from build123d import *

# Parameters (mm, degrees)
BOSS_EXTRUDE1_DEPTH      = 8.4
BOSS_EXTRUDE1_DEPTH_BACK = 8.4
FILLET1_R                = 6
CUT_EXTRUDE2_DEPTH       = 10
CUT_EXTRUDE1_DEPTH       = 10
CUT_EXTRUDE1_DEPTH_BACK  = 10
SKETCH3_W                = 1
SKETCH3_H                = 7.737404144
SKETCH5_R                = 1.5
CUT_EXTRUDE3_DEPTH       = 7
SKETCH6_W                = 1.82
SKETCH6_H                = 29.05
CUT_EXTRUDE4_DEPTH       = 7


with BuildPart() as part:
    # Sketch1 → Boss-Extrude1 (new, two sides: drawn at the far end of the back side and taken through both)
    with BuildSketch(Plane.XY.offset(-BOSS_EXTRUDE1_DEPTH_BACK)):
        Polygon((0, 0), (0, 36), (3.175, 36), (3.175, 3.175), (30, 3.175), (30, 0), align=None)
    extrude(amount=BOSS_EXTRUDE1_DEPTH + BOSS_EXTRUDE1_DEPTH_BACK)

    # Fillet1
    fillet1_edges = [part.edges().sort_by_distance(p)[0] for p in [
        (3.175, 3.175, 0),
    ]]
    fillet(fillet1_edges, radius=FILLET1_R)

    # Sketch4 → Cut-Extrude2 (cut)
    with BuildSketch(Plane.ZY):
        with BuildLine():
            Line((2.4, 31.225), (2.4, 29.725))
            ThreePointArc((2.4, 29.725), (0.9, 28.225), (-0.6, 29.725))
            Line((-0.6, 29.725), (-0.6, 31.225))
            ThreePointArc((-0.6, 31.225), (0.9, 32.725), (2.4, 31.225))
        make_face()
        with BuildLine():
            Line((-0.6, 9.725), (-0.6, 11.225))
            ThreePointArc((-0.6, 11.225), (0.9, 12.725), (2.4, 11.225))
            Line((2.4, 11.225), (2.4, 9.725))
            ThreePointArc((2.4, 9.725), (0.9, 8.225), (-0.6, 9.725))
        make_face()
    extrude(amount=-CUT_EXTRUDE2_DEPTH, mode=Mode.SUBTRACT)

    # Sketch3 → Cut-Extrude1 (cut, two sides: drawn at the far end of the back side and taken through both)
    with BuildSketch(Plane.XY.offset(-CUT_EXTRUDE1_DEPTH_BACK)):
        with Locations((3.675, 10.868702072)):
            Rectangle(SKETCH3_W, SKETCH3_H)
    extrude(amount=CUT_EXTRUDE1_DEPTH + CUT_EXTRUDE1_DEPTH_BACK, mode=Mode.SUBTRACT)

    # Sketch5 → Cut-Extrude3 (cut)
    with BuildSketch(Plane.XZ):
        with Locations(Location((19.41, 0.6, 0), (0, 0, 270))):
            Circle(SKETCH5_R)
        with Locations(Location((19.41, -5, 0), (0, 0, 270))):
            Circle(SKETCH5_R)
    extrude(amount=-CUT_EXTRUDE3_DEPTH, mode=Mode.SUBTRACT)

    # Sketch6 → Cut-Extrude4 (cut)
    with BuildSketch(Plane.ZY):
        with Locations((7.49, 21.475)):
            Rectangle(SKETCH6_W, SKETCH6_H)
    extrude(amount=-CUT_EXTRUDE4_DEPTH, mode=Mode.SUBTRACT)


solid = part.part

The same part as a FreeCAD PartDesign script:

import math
import FreeCAD as App
import Part
import Sketcher

V = App.Vector


def edges_at(feature, points):
    """Names of the edges that pass closest to the given points."""
    edges = feature.Shape.Edges
    near = lambda p: min(range(len(edges)), key=lambda i: edges[i].distToShape(Part.Vertex(*p))[0])
    return sorted({f"Edge{near(p) + 1}" for p in points})


def add_polygon(sketch, points):
    """Adds a closed chain of lines whose ends are joined by coincident constraints."""
    first, n = sketch.GeometryCount, len(points)
    for a, b in zip(points, points[1:] + points[:1]):
        sketch.addGeometry(Part.LineSegment(App.Vector(*a, 0), App.Vector(*b, 0)), False)
    for i in range(n):
        sketch.addConstraint(Sketcher.Constraint("Coincident", first + i, 2, first + (i + 1) % n, 1))

doc = App.newDocument("Part")
params = doc.addObject("Spreadsheet::Sheet", "Params")
for row, (alias, value) in enumerate([
    ("sketch1_width", "30 mm"),
    ("sketch1_height", "36 mm"),
    ("pad1_length", "8.4 mm"),
    ("pad1_length2", "8.4 mm"),
    ("fillet_radius", "6 mm"),
    ("sketch2_radius", "1.5 mm"),
    ("sketch2_width", "1.5 mm"),
    ("pocket1_length", "10 mm"),
    ("sketch3_width", "1 mm"),
    ("sketch4_diameter", "3 mm"),
    ("pocket3_length", "7 mm"),
    ("sketch5_width", "29.05 mm"),
    ("sketch5_height", "1.82 mm"),
    ("pocket4_length", "7 mm"),
], start=1):
    params.set(f"A{row}", alias)
    params.set(f"B{row}", "=" + value)
    params.setAlias(f"B{row}", alias)

body = doc.addObject("PartDesign::Body", "Body")

# Sketch on XY plane
sketch1 = body.newObject("Sketcher::SketchObject", "Sketch")
sketch1.AttachmentSupport = (doc.getObject("XY_Plane"), [""])
sketch1.MapMode = "FlatFace"
add_polygon(sketch1, [(0, 36), (0, 0), (30, 0), (30, 3.175), (3.175, 3.175), (3.175, 36)])  # lines 0-5
sketch1.addConstraint([
    Sketcher.Constraint("Vertical", 0),
    Sketcher.Constraint("Horizontal", 1),
    Sketcher.Constraint("Vertical", 2),
    Sketcher.Constraint("Horizontal", 3),
    Sketcher.Constraint("Vertical", 4),
    Sketcher.Constraint("Horizontal", 5),
    Sketcher.Constraint("Coincident", 0, 2, -1, 1),
    Sketcher.Constraint("Equal", 5, 2),
    Sketcher.Constraint("DistanceX", 1, 1, 1, 2, 30.0),
    Sketcher.Constraint("DistanceY", 0, 2, 0, 1, 36.0),
    Sketcher.Constraint("DistanceX", 3, 2, 3, 1, 26.825),
])
sketch1.setExpression("Constraints[14]", "Params.sketch1_width")
sketch1.setExpression("Constraints[15]", "Params.sketch1_height")
pad1 = body.newObject("PartDesign::Pad", "Pad")
pad1.Profile = sketch1
pad1.Type = "TwoLengths"
pad1.setExpression("Length", "Params.pad1_length")
pad1.setExpression("Length2", "Params.pad1_length2")
doc.recompute()

fillet = body.newObject("PartDesign::Fillet", "Fillet")
fillet.Base = (pad1, edges_at(pad1, [(3.175, 3.175, 0)]))
fillet.setExpression("Radius", "Params.fillet_radius")

# Sketch on YZ plane
sketch2 = body.newObject("Sketcher::SketchObject", "Sketch001")
sketch2.AttachmentSupport = (doc.getObject("YZ_Plane"), [""])
sketch2.MapMode = "FlatFace"
sketch2.addGeometry([
    Part.LineSegment(V(29.725, 2.4, 0), V(31.225, 2.4, 0)),  # 0
    Part.ArcOfCircle(Part.Circle(V(31.225, 0.9, 0), V(0, 0, 1), 1.5), math.radians(-90), math.radians(90)),  # 1
    Part.LineSegment(V(31.225, -0.6, 0), V(29.725, -0.6, 0)),  # 2
    Part.ArcOfCircle(Part.Circle(V(29.725, 0.9, 0), V(0, 0, 1), 1.5), math.radians(90), math.radians(270)),  # 3
    Part.LineSegment(V(11.225, -0.6, 0), V(9.725, -0.6, 0)),  # 4
    Part.ArcOfCircle(Part.Circle(V(9.725, 0.9, 0), V(0, 0, 1), 1.5), math.radians(90), math.radians(270)),  # 5
    Part.LineSegment(V(9.725, 2.4, 0), V(11.225, 2.4, 0)),  # 6
    Part.ArcOfCircle(Part.Circle(V(11.225, 0.9, 0), V(0, 0, 1), 1.5), math.radians(-90), math.radians(90)),  # 7
], False)
sketch2.addConstraint([
    Sketcher.Constraint("Tangent", 0, 2, 1, 2),
    Sketcher.Constraint("Tangent", 1, 1, 2, 1),
    Sketcher.Constraint("Tangent", 2, 2, 3, 2),
    Sketcher.Constraint("Tangent", 3, 1, 0, 1),
    Sketcher.Constraint("Tangent", 4, 2, 5, 2),
    Sketcher.Constraint("Tangent", 5, 1, 6, 1),
    Sketcher.Constraint("Tangent", 6, 2, 7, 2),
    Sketcher.Constraint("Tangent", 7, 1, 4, 1),
    Sketcher.Constraint("Horizontal", 0),
    Sketcher.Constraint("Horizontal", 2),
    Sketcher.Constraint("Horizontal", 4),
    Sketcher.Constraint("Horizontal", 6),
    Sketcher.Constraint("Equal", 3, 5),
    Sketcher.Constraint("Horizontal", 3, 3, 5, 3),
    Sketcher.Constraint("Equal", 2, 4),
    Sketcher.Constraint("Radius", 1, 1.5),
    Sketcher.Constraint("DistanceX", 0, 1, 0, 2, 1.5),
    Sketcher.Constraint("DistanceX", 5, 3, 3, 3, 20.0),
    Sketcher.Constraint("DistanceY", -1, 1, 1, 3, 0.9),
    Sketcher.Constraint("DistanceX", -1, 1, 1, 3, 31.225),
])
sketch2.setExpression("Constraints[15]", "Params.sketch2_radius")
sketch2.setExpression("Constraints[16]", "Params.sketch2_width")
pocket1 = body.newObject("PartDesign::Pocket", "Pocket")
pocket1.Profile = sketch2
pocket1.setExpression("Length", "Params.pocket1_length")
pocket1.Reversed = True

# Sketch on XY plane
sketch3 = body.newObject("Sketcher::SketchObject", "Sketch002")
sketch3.AttachmentSupport = (doc.getObject("XY_Plane"), [""])
sketch3.MapMode = "FlatFace"
add_polygon(sketch3, [(3.175, 14.737404), (3.175, 7), (4.175, 7), (4.175, 14.737404)])  # lines 0-3
sketch3.addConstraint([
    Sketcher.Constraint("Vertical", 0),
    Sketcher.Constraint("Horizontal", 1),
    Sketcher.Constraint("Vertical", 2),
    Sketcher.Constraint("Horizontal", 3),
    Sketcher.Constraint("DistanceX", 1, 1, 1, 2, 1.0),
    Sketcher.Constraint("DistanceY", -1, 1, 0, 2, 7.0),
    Sketcher.Constraint("DistanceX", -1, 1, 0, 2, 3.175),
    Sketcher.Constraint("DistanceY", 0, 2, 0, 1, 7.737404),
])
sketch3.setExpression("Constraints[8]", "Params.sketch3_width")
pocket2 = body.newObject("PartDesign::Pocket", "Pocket001")
pocket2.Profile = sketch3
pocket2.Type = "ThroughAll"
pocket2.Midplane = True

# Sketch on XZ plane
sketch4 = body.newObject("Sketcher::SketchObject", "Sketch003")
sketch4.AttachmentSupport = (doc.getObject("XZ_Plane"), [""])
sketch4.MapMode = "FlatFace"
sketch4.addGeometry([
    Part.Circle(V(19.41, 0.6, 0), V(0, 0, 1), 1.5),
    Part.Circle(V(19.41, -5, 0), V(0, 0, 1), 1.5),
], False)
sketch4.addConstraint([
    Sketcher.Constraint("Equal", 0, 1),
    Sketcher.Constraint("Vertical", 0, 3, 1, 3),
    Sketcher.Constraint("Diameter", 0, 3.0),
    Sketcher.Constraint("DistanceY", 1, 3, -1, 1, 5.0),
    Sketcher.Constraint("DistanceY", -1, 1, 0, 3, 0.6),
    Sketcher.Constraint("DistanceX", -1, 1, 0, 3, 19.41),
])
sketch4.setExpression("Constraints[2]", "Params.sketch4_diameter")
pocket3 = body.newObject("PartDesign::Pocket", "Pocket002")
pocket3.Profile = sketch4
pocket3.setExpression("Length", "Params.pocket3_length")

# Sketch on YZ plane
sketch5 = body.newObject("Sketcher::SketchObject", "Sketch004")
sketch5.AttachmentSupport = (doc.getObject("YZ_Plane"), [""])
sketch5.MapMode = "FlatFace"
add_polygon(sketch5, [(36, 6.58), (6.95, 6.58), (6.95, 8.4), (36, 8.4)])  # lines 0-3
sketch5.addConstraint([
    Sketcher.Constraint("Horizontal", 0),
    Sketcher.Constraint("Vertical", 1),
    Sketcher.Constraint("Horizontal", 2),
    Sketcher.Constraint("Vertical", 3),
    Sketcher.Constraint("DistanceX", -1, 1, 2, 2, 36.0),
    Sketcher.Constraint("DistanceX", 0, 2, 0, 1, 29.05),
    Sketcher.Constraint("DistanceY", 1, 1, 1, 2, 1.82),
    Sketcher.Constraint("DistanceY", -1, 1, 1, 2, 8.4),
])
sketch5.setExpression("Constraints[9]", "Params.sketch5_width")
sketch5.setExpression("Constraints[10]", "Params.sketch5_height")
pocket4 = body.newObject("PartDesign::Pocket", "Pocket003")
pocket4.Profile = sketch5
pocket4.setExpression("Length", "Params.pocket4_length")
pocket4.Reversed = True

doc.recompute()
